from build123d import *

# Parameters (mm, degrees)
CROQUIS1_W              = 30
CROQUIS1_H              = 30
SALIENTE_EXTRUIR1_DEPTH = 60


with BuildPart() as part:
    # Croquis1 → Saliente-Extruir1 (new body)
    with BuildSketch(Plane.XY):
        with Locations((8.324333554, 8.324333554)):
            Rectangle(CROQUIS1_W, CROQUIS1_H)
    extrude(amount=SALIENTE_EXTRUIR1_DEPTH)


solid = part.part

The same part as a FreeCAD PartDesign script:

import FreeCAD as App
import Part
import Sketcher

V = App.Vector
Q = App.Units.Quantity


def add_polygon(sketch, points):
    """Adds a closed chain of lines whose ends are joined by coincident constraints."""
    first, n = sketch.GeometryCount, len(points)
    for a, b in zip(points, points[1:] + points[:1]):
        sketch.addGeometry(Part.LineSegment(App.Vector(*a, 0), App.Vector(*b, 0)), False)
    for i in range(n):
        sketch.addConstraint(Sketcher.Constraint("Coincident", first + i, 2, first + (i + 1) % n, 1))

doc = App.newDocument("Part")
body = doc.addObject("PartDesign::Body", "Body")

sketch1 = body.newObject("Sketcher::SketchObject", "Sketch")
sketch1.AttachmentSupport = (doc.getObject("XY_Plane"), [""])
sketch1.MapMode = "FlatFace"
add_polygon(sketch1, [(-7, 23), (-7, -7), (23, -7), (23, 23)])
sketch1.addConstraint([
    Sketcher.Constraint("Vertical", 0),
    Sketcher.Constraint("Horizontal", 1),
    Sketcher.Constraint("Vertical", 2),
    Sketcher.Constraint("Horizontal", 3),
    Sketcher.Constraint("Equal", 3, 0),
    Sketcher.Constraint("DistanceX", 1, 1, 1, 2, Q("30 mm")),
    Sketcher.Constraint("DistanceX", 0, 2, -1, 1, Q("6.675666 mm")),
    Sketcher.Constraint("DistanceY", 0, 2, -1, 1, Q("6.675666 mm")),
])
pad1 = body.newObject("PartDesign::Pad", "Pad")
pad1.Profile = sketch1
pad1.Length = 60

doc.recompute()
